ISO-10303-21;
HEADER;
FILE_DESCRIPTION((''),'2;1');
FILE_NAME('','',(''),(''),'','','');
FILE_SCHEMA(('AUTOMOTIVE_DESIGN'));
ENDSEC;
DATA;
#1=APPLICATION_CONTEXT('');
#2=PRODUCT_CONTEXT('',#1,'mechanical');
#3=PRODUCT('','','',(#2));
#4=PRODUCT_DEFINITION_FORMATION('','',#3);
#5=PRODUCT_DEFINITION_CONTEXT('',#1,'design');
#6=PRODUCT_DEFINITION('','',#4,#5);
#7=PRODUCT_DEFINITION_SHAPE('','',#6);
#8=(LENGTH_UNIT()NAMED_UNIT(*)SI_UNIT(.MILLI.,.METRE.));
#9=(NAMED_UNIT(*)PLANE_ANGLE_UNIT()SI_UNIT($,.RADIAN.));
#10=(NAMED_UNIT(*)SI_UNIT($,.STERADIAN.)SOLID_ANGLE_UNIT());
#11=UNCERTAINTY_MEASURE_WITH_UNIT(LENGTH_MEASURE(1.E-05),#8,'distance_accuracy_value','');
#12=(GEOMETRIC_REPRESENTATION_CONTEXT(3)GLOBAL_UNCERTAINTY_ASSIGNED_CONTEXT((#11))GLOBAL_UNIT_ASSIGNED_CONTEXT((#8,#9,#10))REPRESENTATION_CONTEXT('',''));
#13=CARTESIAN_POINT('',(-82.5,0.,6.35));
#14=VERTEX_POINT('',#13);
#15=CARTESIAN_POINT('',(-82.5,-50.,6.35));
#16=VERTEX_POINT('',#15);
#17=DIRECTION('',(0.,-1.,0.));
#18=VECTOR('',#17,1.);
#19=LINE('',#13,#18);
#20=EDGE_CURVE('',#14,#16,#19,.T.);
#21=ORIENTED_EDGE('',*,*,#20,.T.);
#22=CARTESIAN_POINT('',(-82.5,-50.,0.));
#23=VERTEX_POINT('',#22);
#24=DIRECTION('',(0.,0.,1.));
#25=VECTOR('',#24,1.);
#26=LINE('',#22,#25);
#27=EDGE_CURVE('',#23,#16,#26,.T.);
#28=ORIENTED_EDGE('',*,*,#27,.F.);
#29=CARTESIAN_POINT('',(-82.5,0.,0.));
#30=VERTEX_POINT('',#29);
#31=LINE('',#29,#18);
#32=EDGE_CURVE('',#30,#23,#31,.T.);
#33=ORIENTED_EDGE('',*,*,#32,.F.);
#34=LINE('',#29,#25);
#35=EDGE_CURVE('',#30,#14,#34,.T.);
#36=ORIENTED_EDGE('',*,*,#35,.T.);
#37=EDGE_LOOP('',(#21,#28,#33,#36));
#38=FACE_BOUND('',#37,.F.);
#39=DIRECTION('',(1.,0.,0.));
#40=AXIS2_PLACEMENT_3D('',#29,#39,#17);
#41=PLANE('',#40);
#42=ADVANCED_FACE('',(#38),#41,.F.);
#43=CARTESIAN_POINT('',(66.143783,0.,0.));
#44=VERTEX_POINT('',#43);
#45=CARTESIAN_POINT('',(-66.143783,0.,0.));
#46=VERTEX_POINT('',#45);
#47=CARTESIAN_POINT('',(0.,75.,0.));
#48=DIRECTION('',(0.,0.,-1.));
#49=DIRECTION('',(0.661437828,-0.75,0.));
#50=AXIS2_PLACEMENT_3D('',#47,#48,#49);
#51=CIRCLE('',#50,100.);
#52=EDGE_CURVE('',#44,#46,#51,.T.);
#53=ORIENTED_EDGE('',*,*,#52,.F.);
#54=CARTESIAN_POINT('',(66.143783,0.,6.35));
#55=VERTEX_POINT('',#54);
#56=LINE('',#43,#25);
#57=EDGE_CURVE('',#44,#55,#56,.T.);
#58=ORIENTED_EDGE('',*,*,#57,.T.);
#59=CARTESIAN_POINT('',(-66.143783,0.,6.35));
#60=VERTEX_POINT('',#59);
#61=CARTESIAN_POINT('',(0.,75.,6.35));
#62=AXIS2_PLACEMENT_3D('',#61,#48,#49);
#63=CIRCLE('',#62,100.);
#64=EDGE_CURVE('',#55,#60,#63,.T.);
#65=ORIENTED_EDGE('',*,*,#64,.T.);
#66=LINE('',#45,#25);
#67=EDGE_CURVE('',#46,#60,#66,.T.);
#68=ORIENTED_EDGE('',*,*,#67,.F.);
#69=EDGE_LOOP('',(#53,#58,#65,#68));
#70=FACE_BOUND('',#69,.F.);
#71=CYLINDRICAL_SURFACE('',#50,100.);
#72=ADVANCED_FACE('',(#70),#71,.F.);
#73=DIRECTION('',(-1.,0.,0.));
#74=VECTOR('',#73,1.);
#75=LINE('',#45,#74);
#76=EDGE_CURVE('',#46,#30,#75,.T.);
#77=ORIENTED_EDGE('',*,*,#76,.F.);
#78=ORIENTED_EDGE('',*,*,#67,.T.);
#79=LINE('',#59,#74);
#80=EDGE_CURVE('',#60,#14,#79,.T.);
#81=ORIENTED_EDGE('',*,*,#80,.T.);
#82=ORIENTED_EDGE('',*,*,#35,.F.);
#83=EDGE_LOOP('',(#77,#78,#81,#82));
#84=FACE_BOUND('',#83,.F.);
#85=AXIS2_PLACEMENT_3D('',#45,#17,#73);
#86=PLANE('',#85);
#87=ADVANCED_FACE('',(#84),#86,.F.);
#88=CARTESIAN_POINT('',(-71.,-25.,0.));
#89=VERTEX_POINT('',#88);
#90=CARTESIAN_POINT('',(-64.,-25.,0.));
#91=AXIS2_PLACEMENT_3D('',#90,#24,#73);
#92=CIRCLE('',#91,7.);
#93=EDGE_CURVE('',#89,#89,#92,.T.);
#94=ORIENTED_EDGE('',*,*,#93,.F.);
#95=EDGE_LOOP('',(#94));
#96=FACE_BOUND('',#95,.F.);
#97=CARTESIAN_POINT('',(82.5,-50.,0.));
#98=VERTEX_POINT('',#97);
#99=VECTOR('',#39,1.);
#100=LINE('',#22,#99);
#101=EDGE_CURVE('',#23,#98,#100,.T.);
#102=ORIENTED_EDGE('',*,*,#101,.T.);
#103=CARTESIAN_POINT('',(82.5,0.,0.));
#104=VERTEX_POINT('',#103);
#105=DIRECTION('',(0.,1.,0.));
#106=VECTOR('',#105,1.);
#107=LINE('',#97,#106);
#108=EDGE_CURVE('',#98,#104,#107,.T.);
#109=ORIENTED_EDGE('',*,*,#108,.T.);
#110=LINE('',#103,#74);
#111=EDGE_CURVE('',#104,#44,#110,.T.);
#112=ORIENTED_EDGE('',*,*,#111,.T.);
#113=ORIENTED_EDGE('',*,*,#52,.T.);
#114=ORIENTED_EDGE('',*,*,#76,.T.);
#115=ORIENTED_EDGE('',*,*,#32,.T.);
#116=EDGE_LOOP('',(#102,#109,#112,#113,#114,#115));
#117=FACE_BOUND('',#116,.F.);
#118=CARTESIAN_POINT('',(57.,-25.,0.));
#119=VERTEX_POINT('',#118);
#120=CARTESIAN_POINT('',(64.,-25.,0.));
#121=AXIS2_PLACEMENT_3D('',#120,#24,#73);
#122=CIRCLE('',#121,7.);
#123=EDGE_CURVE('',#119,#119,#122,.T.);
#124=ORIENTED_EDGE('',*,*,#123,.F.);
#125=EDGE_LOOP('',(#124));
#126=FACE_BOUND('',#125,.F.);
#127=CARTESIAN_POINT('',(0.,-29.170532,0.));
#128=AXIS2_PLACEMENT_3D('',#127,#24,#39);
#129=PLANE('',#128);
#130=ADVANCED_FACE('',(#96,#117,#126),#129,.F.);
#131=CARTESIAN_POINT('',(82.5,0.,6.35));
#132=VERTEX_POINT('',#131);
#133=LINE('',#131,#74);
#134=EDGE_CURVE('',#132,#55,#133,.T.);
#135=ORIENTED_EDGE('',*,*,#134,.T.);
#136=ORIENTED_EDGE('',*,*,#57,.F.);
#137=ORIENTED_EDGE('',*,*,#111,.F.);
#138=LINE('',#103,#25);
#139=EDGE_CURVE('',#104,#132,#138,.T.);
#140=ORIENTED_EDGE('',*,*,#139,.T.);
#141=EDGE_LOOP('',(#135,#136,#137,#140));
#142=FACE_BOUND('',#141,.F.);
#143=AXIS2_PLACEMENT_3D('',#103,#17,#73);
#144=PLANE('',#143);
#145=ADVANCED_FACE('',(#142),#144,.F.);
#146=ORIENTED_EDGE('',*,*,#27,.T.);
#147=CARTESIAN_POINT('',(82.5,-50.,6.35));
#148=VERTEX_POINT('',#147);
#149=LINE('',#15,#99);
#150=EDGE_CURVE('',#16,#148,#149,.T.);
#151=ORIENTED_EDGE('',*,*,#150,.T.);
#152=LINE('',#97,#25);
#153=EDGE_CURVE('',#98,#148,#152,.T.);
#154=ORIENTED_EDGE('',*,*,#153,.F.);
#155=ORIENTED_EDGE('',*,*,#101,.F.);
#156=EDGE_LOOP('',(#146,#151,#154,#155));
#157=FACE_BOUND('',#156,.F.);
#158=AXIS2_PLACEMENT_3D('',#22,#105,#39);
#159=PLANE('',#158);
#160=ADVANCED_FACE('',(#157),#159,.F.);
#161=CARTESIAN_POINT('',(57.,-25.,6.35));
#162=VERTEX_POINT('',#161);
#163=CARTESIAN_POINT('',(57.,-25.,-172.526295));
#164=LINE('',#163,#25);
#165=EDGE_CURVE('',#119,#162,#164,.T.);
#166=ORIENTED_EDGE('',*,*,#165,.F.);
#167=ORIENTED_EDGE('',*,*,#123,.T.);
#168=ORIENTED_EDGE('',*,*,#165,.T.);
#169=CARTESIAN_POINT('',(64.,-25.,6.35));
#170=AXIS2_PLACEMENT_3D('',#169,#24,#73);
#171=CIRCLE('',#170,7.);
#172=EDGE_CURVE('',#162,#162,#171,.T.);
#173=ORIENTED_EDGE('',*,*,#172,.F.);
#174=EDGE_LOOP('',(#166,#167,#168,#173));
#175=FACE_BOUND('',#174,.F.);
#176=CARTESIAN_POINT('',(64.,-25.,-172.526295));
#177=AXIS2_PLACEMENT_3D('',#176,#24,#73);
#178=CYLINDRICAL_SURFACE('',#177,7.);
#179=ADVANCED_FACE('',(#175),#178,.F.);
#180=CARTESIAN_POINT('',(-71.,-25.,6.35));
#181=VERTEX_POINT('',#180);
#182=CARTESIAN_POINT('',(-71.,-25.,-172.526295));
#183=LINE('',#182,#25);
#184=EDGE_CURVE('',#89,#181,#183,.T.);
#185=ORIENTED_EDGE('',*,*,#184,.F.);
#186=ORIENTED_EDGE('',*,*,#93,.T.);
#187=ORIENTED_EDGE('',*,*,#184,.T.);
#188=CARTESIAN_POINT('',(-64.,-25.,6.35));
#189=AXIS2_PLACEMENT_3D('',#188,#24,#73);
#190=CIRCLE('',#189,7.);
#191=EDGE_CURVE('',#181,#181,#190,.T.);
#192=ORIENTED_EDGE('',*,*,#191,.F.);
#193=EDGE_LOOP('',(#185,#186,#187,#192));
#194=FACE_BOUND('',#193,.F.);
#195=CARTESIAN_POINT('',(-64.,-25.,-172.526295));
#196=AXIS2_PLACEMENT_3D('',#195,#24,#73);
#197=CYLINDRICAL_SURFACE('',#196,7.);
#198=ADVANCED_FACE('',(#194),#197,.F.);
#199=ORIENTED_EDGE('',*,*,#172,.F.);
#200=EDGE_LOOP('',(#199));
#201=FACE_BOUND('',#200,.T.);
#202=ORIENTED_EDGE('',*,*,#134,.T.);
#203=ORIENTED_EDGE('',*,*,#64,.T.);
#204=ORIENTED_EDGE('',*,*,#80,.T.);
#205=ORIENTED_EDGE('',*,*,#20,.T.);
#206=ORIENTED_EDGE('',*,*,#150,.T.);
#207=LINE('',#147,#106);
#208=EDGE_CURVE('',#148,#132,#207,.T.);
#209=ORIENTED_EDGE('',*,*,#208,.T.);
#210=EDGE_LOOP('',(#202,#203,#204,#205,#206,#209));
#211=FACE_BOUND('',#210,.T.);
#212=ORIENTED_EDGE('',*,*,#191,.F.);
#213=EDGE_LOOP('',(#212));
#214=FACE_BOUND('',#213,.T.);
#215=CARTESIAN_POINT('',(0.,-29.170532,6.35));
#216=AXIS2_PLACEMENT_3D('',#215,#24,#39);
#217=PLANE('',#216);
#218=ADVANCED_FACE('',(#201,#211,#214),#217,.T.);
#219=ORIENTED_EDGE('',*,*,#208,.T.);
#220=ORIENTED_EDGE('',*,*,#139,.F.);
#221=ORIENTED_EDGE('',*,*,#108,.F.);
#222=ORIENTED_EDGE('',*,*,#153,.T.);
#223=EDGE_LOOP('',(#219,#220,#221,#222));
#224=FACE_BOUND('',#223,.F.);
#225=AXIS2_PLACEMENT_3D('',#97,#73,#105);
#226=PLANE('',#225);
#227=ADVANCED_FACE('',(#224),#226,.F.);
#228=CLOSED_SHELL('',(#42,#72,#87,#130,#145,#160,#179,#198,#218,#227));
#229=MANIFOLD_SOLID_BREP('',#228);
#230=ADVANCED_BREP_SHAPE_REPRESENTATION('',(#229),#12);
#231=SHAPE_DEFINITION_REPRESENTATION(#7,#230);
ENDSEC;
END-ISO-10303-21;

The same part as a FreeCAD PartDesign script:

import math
import FreeCAD as App
import Part
import Sketcher
from FreeCAD import Vector

doc = App.newDocument("Part")
params = doc.addObject("Spreadsheet::Sheet", "Params")
for row, (alias, value) in enumerate([
    ("sketch1_radius", "100 mm"),
    ("sketch1_width", "165 mm"),
    ("sketch1_height", "50 mm"),
    ("pad1_length", "6.35 mm"),
    ("sketch2_diameter", "14 mm"),
    ("hole_diameter", "14 mm"),
], start=1):
    params.set(f"A{row}", alias)
    params.set(f"B{row}", "=" + value)
    params.setAlias(f"B{row}", alias)

body = doc.addObject("PartDesign::Body", "Body")

# Sketch on XY plane
sketch1 = doc.addObject("Sketcher::SketchObject", "Sketch")
body.addObject(sketch1)
sketch1.AttachmentSupport = (doc.XY_Plane, [""])
sketch1.MapMode = "FlatFace"
sketch1.addGeometry([
    Part.LineSegment(Vector(-66.143783, 0, 0), Vector(-82.5, 0, 0)),  # 0
    Part.LineSegment(Vector(-82.5, 0, 0), Vector(-82.5, -50, 0)),  # 1
    Part.LineSegment(Vector(-82.5, -50, 0), Vector(82.5, -50, 0)),  # 2
    Part.LineSegment(Vector(82.5, -50, 0), Vector(82.5, 0, 0)),  # 3
    Part.LineSegment(Vector(82.5, 0, 0), Vector(66.143783, 0, 0)),  # 4
    Part.ArcOfCircle(Part.Circle(Vector(0, 75, 0), Vector(0, 0, 1), 100), math.radians(-131.409622), math.radians(-48.590378)),  # 5
], False)
sketch1.addConstraint([
    Sketcher.Constraint("Coincident", 0, 2, 1, 1),
    Sketcher.Constraint("Coincident", 1, 2, 2, 1),
    Sketcher.Constraint("Coincident", 2, 2, 3, 1),
    Sketcher.Constraint("Coincident", 3, 2, 4, 1),
    Sketcher.Constraint("Coincident", 4, 2, 5, 2),
    Sketcher.Constraint("Coincident", 5, 1, 0, 1),
    Sketcher.Constraint("Horizontal", 0),
    Sketcher.Constraint("Vertical", 1),
    Sketcher.Constraint("Horizontal", 2),
    Sketcher.Constraint("Vertical", 3),
    Sketcher.Constraint("Horizontal", 4),
    Sketcher.Constraint("Symmetric", 0, 2, 3, 2, -1, 1),
    Sketcher.Constraint("Symmetric", 4, 2, 5, 1, -2),
    Sketcher.Constraint("Radius", 5, 100.0),
    Sketcher.Constraint("DistanceX", 2, 1, 2, 2, 165.0),
    Sketcher.Constraint("DistanceY", 1, 2, 1, 1, 50.0),
    Sketcher.Constraint("DistanceY", -1, 1, 5, 3, 75.0),
])
sketch1.setExpression("Constraints[13]", "Params.sketch1_radius")
sketch1.setExpression("Constraints[14]", "Params.sketch1_width")
sketch1.setExpression("Constraints[15]", "Params.sketch1_height")
pad1 = doc.addObject("PartDesign::Pad", "Pad")
body.addObject(pad1)
pad1.Profile = sketch1
pad1.setExpression("Length", "Params.pad1_length")

# Sketch on XY plane
sketch2 = doc.addObject("Sketcher::SketchObject", "Sketch001")
body.addObject(sketch2)
sketch2.AttachmentSupport = (doc.XY_Plane, [""])
sketch2.MapMode = "FlatFace"
sketch2.addGeometry([
    Part.Circle(Vector(-64, -25, 0), Vector(0, 0, 1), 7),
    Part.Circle(Vector(64, -25, 0), Vector(0, 0, 1), 7),
], False)
sketch2.addConstraint([
    Sketcher.Constraint("Equal", 0, 1),
    Sketcher.Constraint("Symmetric", 0, 3, 1, 3, -2),
    Sketcher.Constraint("Diameter", 0, 14.0),
    Sketcher.Constraint("DistanceX", 0, 3, -1, 1, 64.0),
    Sketcher.Constraint("DistanceY", 0, 3, -1, 1, 25.0),
])
sketch2.setExpression("Constraints[2]", "Params.sketch2_diameter")
doc.recompute()
hole = doc.addObject("PartDesign::Hole", "Hole")
body.addObject(hole)
hole.Profile = sketch2
hole.ThreadType = "None"
hole.setExpression("Diameter", "Params.hole_diameter")
hole.DepthType = "ThroughAll"
hole.Reversed = True

doc.recompute()
